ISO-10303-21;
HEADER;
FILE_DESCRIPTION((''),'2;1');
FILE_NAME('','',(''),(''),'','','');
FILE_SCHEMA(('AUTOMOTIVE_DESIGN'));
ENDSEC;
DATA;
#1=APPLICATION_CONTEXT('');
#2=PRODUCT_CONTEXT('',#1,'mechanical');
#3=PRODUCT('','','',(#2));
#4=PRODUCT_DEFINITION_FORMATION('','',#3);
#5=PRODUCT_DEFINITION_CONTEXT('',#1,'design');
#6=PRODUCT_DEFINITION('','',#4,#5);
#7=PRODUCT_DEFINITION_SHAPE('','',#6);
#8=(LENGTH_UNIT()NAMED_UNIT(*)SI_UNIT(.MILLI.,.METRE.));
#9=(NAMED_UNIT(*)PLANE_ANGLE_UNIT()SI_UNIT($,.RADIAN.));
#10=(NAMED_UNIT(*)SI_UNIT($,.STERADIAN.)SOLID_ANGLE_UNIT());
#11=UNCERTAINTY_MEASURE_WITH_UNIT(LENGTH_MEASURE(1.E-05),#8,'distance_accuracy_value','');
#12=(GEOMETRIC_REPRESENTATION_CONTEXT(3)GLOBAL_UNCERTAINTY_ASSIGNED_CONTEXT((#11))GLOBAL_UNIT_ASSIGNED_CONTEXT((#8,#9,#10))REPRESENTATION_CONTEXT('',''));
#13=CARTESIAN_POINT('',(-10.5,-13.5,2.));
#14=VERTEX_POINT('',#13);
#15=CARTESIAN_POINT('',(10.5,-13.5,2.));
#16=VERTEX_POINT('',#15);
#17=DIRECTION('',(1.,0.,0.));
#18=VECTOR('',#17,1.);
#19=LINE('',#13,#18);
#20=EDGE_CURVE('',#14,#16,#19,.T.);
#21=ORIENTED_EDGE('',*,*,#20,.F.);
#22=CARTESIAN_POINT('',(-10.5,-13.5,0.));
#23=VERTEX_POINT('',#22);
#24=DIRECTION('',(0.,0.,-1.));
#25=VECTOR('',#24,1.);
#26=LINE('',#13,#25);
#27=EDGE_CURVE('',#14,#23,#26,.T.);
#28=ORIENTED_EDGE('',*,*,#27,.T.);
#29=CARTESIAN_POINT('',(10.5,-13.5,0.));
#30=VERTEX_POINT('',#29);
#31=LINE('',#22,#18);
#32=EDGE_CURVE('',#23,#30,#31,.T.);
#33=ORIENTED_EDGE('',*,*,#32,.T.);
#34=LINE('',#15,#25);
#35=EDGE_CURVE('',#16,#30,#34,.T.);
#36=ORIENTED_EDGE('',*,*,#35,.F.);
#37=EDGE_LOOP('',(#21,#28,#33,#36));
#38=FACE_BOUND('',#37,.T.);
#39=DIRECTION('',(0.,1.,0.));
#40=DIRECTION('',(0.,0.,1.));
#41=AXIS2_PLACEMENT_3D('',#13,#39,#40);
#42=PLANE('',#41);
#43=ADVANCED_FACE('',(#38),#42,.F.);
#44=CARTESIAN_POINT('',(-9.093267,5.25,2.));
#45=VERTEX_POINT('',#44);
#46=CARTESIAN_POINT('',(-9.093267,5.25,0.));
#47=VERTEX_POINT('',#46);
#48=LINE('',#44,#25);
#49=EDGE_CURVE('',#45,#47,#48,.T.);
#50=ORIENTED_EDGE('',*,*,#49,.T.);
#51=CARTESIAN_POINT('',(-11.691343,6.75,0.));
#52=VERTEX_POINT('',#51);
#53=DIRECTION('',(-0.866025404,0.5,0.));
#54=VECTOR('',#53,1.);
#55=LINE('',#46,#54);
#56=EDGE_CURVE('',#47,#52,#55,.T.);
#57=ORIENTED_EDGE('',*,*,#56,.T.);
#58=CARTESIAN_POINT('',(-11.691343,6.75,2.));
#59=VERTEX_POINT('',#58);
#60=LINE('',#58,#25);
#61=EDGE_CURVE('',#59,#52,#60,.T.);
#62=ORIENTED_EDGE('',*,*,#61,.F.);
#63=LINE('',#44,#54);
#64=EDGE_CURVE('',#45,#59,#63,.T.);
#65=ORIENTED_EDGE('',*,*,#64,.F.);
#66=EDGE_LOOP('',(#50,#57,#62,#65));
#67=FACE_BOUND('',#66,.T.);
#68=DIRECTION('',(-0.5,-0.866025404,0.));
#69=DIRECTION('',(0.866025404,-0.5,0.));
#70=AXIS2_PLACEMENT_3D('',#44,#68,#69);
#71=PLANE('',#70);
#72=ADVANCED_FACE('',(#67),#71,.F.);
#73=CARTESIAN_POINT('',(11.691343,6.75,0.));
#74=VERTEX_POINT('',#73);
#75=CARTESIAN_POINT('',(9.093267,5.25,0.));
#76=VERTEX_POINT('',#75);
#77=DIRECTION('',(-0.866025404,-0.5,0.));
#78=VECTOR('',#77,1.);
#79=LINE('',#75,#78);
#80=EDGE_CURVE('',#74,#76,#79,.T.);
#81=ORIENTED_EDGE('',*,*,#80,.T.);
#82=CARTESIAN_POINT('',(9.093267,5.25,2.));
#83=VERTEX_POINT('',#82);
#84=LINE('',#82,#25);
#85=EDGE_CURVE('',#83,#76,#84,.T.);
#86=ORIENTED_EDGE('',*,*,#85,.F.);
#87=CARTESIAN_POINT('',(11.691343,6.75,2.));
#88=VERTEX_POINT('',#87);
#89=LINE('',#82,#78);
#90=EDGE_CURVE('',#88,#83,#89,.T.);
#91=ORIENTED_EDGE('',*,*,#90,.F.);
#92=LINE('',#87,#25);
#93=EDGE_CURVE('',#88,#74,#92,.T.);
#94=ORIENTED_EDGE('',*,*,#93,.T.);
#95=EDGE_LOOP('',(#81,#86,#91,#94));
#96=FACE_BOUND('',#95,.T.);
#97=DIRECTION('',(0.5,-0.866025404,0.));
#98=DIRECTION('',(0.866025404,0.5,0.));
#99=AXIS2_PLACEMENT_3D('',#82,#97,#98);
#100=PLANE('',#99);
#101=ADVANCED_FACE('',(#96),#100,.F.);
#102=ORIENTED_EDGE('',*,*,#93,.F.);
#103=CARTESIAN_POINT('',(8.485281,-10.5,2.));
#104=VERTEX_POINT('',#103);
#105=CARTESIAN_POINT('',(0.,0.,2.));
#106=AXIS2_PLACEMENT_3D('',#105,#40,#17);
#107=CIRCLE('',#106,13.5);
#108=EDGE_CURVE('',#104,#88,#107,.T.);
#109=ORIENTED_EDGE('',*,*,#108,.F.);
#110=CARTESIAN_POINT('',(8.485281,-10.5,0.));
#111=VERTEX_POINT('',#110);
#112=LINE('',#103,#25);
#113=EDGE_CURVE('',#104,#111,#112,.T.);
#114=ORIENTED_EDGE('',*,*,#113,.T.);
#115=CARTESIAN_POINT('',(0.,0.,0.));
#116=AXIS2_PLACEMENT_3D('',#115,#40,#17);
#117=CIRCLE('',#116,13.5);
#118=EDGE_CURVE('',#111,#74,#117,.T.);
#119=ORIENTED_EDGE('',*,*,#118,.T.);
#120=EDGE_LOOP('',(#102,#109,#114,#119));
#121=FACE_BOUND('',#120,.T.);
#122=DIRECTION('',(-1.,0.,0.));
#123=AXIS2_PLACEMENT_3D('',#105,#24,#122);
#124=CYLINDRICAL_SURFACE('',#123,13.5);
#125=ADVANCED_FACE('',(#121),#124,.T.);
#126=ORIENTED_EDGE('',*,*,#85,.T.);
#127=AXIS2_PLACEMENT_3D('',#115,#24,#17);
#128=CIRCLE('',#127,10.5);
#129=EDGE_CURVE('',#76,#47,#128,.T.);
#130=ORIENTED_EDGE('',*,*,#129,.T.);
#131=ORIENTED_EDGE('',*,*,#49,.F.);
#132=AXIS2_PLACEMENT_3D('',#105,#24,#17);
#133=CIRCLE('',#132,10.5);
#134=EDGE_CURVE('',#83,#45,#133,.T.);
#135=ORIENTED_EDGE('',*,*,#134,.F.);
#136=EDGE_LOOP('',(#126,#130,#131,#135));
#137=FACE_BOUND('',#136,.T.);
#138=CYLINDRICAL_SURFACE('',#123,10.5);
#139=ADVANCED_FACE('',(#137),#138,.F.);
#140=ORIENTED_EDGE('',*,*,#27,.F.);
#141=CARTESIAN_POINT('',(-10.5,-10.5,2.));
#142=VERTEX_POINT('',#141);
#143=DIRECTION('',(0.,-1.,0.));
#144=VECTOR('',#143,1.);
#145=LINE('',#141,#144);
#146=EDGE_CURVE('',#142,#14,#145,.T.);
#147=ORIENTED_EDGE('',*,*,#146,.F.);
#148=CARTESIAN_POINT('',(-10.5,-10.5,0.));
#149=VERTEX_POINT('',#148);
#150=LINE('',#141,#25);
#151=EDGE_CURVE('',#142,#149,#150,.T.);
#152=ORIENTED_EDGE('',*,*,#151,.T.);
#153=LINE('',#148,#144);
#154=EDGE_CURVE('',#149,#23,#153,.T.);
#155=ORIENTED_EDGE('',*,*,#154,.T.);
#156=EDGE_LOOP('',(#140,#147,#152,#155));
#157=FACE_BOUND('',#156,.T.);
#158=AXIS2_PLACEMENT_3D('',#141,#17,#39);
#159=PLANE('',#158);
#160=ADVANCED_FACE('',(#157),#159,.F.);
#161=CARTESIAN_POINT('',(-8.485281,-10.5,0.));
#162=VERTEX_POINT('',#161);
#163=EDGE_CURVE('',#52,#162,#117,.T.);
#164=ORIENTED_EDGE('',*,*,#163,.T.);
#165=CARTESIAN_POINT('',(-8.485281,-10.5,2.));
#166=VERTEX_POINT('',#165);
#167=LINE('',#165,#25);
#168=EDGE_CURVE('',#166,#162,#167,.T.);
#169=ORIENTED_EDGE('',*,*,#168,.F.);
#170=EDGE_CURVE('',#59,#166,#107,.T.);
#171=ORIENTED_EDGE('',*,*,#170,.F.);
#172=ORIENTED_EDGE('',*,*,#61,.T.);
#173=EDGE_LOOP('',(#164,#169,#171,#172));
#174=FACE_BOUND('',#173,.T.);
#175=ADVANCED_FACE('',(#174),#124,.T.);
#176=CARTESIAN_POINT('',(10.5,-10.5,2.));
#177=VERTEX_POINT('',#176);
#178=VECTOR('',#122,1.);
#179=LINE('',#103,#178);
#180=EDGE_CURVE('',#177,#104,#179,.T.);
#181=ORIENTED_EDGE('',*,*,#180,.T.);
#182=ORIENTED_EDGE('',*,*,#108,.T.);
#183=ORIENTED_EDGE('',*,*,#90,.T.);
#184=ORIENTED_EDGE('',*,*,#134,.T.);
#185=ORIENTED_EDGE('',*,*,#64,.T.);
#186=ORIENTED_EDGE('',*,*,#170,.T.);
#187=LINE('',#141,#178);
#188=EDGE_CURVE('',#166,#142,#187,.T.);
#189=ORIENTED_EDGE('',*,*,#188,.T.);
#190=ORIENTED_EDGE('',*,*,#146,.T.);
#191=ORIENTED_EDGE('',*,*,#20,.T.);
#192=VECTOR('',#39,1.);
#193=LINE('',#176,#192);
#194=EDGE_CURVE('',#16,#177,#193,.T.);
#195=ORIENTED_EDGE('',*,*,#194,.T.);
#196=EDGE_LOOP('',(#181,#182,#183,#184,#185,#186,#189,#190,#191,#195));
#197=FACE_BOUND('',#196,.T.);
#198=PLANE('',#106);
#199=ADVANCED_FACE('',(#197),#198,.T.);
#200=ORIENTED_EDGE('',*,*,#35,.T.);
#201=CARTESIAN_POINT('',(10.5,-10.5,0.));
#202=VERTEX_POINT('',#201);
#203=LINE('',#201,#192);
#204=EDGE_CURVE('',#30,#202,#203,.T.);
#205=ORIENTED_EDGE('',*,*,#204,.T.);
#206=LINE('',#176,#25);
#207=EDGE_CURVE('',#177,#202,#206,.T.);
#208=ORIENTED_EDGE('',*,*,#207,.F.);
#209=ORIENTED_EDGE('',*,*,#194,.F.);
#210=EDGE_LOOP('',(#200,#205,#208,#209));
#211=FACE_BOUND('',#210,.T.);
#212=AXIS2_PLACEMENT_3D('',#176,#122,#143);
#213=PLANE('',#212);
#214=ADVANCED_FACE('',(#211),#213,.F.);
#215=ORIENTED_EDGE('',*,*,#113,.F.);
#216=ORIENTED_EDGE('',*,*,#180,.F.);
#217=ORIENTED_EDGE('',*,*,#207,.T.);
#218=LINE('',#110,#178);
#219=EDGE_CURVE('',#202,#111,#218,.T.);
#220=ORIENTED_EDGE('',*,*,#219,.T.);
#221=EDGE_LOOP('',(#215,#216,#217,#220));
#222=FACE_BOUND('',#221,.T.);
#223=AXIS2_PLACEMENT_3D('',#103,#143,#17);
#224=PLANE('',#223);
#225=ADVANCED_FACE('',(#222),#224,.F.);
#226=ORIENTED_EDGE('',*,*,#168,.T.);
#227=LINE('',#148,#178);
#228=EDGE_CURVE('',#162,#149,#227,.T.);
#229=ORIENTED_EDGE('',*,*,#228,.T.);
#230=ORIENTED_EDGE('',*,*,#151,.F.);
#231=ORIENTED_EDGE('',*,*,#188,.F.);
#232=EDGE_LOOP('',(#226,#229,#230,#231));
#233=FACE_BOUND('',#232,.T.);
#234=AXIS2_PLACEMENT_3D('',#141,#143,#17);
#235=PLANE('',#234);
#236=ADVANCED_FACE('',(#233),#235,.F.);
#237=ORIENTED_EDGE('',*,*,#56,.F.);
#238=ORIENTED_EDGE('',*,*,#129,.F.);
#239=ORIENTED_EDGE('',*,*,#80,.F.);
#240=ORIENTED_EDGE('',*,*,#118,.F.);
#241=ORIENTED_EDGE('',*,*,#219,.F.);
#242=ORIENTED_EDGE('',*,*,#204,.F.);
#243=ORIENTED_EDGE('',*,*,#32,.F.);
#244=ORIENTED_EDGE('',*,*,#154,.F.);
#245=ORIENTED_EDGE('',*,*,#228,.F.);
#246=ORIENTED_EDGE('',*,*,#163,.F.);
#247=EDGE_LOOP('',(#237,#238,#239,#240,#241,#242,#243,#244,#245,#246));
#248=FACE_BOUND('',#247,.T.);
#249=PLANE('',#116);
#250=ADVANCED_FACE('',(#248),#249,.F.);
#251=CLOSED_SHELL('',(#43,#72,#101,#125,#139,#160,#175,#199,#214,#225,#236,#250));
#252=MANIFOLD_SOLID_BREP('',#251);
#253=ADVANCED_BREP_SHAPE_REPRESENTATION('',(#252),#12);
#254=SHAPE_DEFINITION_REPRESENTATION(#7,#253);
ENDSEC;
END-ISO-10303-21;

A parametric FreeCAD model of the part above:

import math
import FreeCAD as App
import Part
import Sketcher

V = App.Vector
Q = App.Units.Quantity

doc = App.newDocument("Part")
body = doc.addObject("PartDesign::Body", "Body")

sketch1 = body.newObject("Sketcher::SketchObject", "Sketch")
sketch1.AttachmentSupport = (doc.getObject("XY_Plane"), [""])
sketch1.MapMode = "FlatFace"
sketch1.addGeometry(Part.LineSegment(V(-9.1, 5.2, 0), V(-11.7, 6.8, 0)), False)
sketch1.addGeometry(Part.ArcOfCircle(Part.Circle(V(0, 0, 0), V(0, 0, 1), 13.5), math.radians(150), math.radians(231)), False)
sketch1.addGeometry(Part.LineSegment(V(-8.5, -10.5, 0), V(-10.5, -10.5, 0)), False)
sketch1.addGeometry(Part.LineSegment(V(-10.5, -10.5, 0), V(-10.5, -13.5, 0)), False)
sketch1.addGeometry(Part.LineSegment(V(-10.5, -13.5, 0), V(10.5, -13.5, 0)), False)
sketch1.addGeometry(Part.LineSegment(V(10.5, -13.5, 0), V(10.5, -10.5, 0)), False)
sketch1.addGeometry(Part.LineSegment(V(10.5, -10.5, 0), V(8.5, -10.5, 0)), False)
sketch1.addGeometry(Part.ArcOfCircle(Part.Circle(V(0, 0, 0), V(0, 0, 1), 13.5), math.radians(-51), math.radians(30)), False)
sketch1.addGeometry(Part.LineSegment(V(11.7, 6.8, 0), V(9.1, 5.2, 0)), False)
sketch1.addGeometry(Part.ArcOfCircle(Part.Circle(V(0, 0, 0), V(0, 0, 1), 10.5), math.radians(150), math.radians(390)), False)
sketch1.addConstraint(Sketcher.Constraint("Coincident", 0, 2, 1, 1))
sketch1.addConstraint(Sketcher.Constraint("Coincident", 1, 2, 2, 1))
sketch1.addConstraint(Sketcher.Constraint("Coincident", 2, 2, 3, 1))
sketch1.addConstraint(Sketcher.Constraint("Coincident", 3, 2, 4, 1))
sketch1.addConstraint(Sketcher.Constraint("Coincident", 4, 2, 5, 1))
sketch1.addConstraint(Sketcher.Constraint("Coincident", 5, 2, 6, 1))
sketch1.addConstraint(Sketcher.Constraint("Coincident", 6, 2, 7, 1))
sketch1.addConstraint(Sketcher.Constraint("Coincident", 7, 2, 8, 1))
sketch1.addConstraint(Sketcher.Constraint("Coincident", 8, 2, 9, 2))
sketch1.addConstraint(Sketcher.Constraint("Coincident", 9, 1, 0, 1))
sketch1.addConstraint(Sketcher.Constraint("Horizontal", 2))
sketch1.addConstraint(Sketcher.Constraint("Vertical", 3))
sketch1.addConstraint(Sketcher.Constraint("Horizontal", 4))
sketch1.addConstraint(Sketcher.Constraint("Vertical", 5))
sketch1.addConstraint(Sketcher.Constraint("Horizontal", 6))
sketch1.addConstraint(Sketcher.Constraint("Coincident", 1, 3, -1, 1))
sketch1.addConstraint(Sketcher.Constraint("Coincident", 7, 3, -1, 1))
sketch1.addConstraint(Sketcher.Constraint("Coincident", 9, 3, -1, 1))
sketch1.addConstraint(Sketcher.Constraint("Equal", 1, 7))
sketch1.addConstraint(Sketcher.Constraint("Symmetric", 2, 2, 5, 2, -2))
sketch1.addConstraint(Sketcher.Constraint("Horizontal", 0, 2, 7, 2))
sketch1.addConstraint(Sketcher.Constraint("Horizontal", 8, 2, 9, 1))
sketch1.addConstraint(Sketcher.Constraint("Radius", 1, Q("13.5 mm")))
sketch1.addConstraint(Sketcher.Constraint("Radius", 9, Q("10.5 mm")))
sketch1.addConstraint(Sketcher.Constraint("DistanceX", 4, 1, 4, 2, Q("21 mm")))
sketch1.addConstraint(Sketcher.Constraint("DistanceY", 3, 2, 3, 1, Q("3 mm")))
sketch1.addConstraint(Sketcher.Constraint("Angle", 0, Q("150 deg")))
sketch1.addConstraint(Sketcher.Constraint("DistanceY", 1, 2, -1, 1, Q("10.5 mm")))
sketch1.addConstraint(Sketcher.Constraint("DistanceY", -1, 1, 0, 2, Q("6.75 mm")))
pad1 = body.newObject("PartDesign::Pad", "Pad")
pad1.Profile = sketch1
pad1.Length = 2

doc.recompute()
